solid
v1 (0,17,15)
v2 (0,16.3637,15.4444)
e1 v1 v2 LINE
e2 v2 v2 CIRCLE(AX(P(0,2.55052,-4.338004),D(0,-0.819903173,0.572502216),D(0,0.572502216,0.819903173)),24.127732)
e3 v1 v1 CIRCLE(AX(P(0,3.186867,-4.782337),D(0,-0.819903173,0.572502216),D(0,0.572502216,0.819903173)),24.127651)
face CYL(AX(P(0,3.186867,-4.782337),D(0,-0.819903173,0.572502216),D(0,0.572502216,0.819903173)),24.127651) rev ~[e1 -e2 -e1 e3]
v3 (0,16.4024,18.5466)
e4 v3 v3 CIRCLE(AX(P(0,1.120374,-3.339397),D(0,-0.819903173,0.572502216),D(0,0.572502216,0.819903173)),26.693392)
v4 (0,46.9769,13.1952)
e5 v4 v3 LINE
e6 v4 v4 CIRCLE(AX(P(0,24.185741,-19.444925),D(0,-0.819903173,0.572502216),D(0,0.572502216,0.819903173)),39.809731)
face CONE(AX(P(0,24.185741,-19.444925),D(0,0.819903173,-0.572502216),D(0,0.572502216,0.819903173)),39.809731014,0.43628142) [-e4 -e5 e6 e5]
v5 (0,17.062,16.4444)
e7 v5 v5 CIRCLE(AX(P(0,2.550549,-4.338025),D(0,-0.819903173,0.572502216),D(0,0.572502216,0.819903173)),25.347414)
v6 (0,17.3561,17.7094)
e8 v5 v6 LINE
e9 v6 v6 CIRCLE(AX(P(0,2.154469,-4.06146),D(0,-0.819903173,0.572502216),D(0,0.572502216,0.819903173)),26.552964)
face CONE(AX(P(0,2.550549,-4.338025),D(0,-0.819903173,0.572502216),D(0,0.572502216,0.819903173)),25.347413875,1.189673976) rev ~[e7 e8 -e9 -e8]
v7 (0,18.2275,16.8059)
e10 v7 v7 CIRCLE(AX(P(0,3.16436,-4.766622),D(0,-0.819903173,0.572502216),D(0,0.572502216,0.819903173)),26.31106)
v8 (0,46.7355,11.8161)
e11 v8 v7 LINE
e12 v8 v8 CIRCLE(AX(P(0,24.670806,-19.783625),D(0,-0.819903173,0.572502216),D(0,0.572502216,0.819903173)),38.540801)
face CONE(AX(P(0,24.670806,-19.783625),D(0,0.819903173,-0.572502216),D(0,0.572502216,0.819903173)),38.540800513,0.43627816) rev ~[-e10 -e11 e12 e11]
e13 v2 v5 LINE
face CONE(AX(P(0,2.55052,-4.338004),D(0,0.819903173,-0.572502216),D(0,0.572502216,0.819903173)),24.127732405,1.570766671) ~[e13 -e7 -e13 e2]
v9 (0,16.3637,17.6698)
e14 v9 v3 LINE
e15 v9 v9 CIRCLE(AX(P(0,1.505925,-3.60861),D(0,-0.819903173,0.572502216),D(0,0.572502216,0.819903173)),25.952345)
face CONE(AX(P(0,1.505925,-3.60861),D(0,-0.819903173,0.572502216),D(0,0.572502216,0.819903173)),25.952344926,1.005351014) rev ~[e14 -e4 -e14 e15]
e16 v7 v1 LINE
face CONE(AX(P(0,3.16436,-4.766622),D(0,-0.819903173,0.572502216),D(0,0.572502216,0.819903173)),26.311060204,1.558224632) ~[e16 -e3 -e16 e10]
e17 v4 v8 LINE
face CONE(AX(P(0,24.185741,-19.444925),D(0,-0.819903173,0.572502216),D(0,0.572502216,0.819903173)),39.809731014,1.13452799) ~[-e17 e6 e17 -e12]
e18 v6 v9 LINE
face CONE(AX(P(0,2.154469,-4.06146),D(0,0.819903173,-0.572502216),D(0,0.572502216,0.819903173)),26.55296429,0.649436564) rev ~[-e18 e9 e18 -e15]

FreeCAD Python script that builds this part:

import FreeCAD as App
import Part
import Sketcher
from FreeCAD import Vector
Q = App.Units.Quantity


def add_polygon(sketch, points):
    """Adds a closed chain of lines whose ends are joined by coincident constraints."""
    first, n = sketch.GeometryCount, len(points)
    for a, b in zip(points, points[1:] + points[:1]):
        sketch.addGeometry(Part.LineSegment(App.Vector(*a, 0), App.Vector(*b, 0)), False)
    for i in range(n):
        sketch.addConstraint(Sketcher.Constraint("Coincident", first + i, 2, first + (i + 1) % n, 1))

doc = App.newDocument("Part")
body = doc.addObject("PartDesign::Body", "Body")

# Sketch on YZ plane
sketch1 = body.newObject("Sketcher::SketchObject", "Sketch")
sketch1.AttachmentSupport = (doc.getObject("YZ_Plane"), [""])
sketch1.MapMode = "FlatFace"
add_polygon(sketch1, [(46.7355, 11.8161), (46.9769, 13.1952), (16.4024, 18.5466), (16.3637, 17.6698), (17.3561, 17.7094), (17.062, 16.4444), (16.3637, 15.4444), (17, 15), (18.2275, 16.8059)])  # lines 0-8
sketch1.addGeometry(Part.LineSegment(Vector(24.670806, -19.783625, 0), Vector(1.120374, -3.339397, 0)), True)  # axis
sketch1.addConstraint([
    Sketcher.Constraint("Distance", 0, Q("1.4 mm")),
    Sketcher.Constraint("DistanceX", -1, 1, 6, 2, Q("17 mm")),
    Sketcher.Constraint("DistanceY", -1, 1, 6, 2, Q("15 mm")),
    Sketcher.Constraint("DistanceY", 4, 2, 3, 2, Q("1.265 mm")),
    Sketcher.Constraint("DistanceY", 5, 2, 4, 2, Q("1 mm")),
    Sketcher.Constraint("DistanceX", -1, 1, 0, 2, Q("46.977 mm")),
    Sketcher.Constraint("DistanceX", -1, 1, 3, 2, Q("17.356 mm")),
    Sketcher.Constraint("DistanceX", -1, 1, 4, 2, Q("17.062 mm")),
    Sketcher.Constraint("DistanceY", -1, 1, 7, 2, Q("16.806 mm")),
    Sketcher.Constraint("DistanceY", -1, 1, 8, 2, Q("11.816 mm")),
    Sketcher.Constraint("DistanceY", 7, 2, 2, 2, Q("0.864 mm")),
    Sketcher.Constraint("DistanceY", 8, 2, 0, 2, Q("1.379 mm")),
    Sketcher.Constraint("DistanceX", 7, 2, 8, 2, Q("28.508 mm")),
    Sketcher.Constraint("DistanceX", 5, 2, 9, 1, Q("8.307 mm")),
    Sketcher.Constraint("DistanceY", 9, 1, 5, 2, Q("35.228 mm")),
    Sketcher.Constraint("Distance", 1, Q("31.0393 mm")),
    Sketcher.Constraint("Distance", 2, Q("0.8777 mm")),
    Sketcher.Constraint("Distance", 3, Q("0.9932 mm")),
    Sketcher.Constraint("Distance", 5, Q("1.2197 mm")),
    Sketcher.Constraint("Distance", 6, Q("0.7761 mm")),
    Sketcher.Constraint("Distance", 9, Q("28.7234 mm")),
    Sketcher.Constraint("DistanceX", -1, 1, 9, 2, Q("1.1204 mm")),
])
revolution = body.newObject("PartDesign::Revolution", "Revolution")
revolution.Profile = sketch1
revolution.ReferenceAxis = (sketch1, ["Axis0"])
revolution.Angle = 360

doc.recompute()
